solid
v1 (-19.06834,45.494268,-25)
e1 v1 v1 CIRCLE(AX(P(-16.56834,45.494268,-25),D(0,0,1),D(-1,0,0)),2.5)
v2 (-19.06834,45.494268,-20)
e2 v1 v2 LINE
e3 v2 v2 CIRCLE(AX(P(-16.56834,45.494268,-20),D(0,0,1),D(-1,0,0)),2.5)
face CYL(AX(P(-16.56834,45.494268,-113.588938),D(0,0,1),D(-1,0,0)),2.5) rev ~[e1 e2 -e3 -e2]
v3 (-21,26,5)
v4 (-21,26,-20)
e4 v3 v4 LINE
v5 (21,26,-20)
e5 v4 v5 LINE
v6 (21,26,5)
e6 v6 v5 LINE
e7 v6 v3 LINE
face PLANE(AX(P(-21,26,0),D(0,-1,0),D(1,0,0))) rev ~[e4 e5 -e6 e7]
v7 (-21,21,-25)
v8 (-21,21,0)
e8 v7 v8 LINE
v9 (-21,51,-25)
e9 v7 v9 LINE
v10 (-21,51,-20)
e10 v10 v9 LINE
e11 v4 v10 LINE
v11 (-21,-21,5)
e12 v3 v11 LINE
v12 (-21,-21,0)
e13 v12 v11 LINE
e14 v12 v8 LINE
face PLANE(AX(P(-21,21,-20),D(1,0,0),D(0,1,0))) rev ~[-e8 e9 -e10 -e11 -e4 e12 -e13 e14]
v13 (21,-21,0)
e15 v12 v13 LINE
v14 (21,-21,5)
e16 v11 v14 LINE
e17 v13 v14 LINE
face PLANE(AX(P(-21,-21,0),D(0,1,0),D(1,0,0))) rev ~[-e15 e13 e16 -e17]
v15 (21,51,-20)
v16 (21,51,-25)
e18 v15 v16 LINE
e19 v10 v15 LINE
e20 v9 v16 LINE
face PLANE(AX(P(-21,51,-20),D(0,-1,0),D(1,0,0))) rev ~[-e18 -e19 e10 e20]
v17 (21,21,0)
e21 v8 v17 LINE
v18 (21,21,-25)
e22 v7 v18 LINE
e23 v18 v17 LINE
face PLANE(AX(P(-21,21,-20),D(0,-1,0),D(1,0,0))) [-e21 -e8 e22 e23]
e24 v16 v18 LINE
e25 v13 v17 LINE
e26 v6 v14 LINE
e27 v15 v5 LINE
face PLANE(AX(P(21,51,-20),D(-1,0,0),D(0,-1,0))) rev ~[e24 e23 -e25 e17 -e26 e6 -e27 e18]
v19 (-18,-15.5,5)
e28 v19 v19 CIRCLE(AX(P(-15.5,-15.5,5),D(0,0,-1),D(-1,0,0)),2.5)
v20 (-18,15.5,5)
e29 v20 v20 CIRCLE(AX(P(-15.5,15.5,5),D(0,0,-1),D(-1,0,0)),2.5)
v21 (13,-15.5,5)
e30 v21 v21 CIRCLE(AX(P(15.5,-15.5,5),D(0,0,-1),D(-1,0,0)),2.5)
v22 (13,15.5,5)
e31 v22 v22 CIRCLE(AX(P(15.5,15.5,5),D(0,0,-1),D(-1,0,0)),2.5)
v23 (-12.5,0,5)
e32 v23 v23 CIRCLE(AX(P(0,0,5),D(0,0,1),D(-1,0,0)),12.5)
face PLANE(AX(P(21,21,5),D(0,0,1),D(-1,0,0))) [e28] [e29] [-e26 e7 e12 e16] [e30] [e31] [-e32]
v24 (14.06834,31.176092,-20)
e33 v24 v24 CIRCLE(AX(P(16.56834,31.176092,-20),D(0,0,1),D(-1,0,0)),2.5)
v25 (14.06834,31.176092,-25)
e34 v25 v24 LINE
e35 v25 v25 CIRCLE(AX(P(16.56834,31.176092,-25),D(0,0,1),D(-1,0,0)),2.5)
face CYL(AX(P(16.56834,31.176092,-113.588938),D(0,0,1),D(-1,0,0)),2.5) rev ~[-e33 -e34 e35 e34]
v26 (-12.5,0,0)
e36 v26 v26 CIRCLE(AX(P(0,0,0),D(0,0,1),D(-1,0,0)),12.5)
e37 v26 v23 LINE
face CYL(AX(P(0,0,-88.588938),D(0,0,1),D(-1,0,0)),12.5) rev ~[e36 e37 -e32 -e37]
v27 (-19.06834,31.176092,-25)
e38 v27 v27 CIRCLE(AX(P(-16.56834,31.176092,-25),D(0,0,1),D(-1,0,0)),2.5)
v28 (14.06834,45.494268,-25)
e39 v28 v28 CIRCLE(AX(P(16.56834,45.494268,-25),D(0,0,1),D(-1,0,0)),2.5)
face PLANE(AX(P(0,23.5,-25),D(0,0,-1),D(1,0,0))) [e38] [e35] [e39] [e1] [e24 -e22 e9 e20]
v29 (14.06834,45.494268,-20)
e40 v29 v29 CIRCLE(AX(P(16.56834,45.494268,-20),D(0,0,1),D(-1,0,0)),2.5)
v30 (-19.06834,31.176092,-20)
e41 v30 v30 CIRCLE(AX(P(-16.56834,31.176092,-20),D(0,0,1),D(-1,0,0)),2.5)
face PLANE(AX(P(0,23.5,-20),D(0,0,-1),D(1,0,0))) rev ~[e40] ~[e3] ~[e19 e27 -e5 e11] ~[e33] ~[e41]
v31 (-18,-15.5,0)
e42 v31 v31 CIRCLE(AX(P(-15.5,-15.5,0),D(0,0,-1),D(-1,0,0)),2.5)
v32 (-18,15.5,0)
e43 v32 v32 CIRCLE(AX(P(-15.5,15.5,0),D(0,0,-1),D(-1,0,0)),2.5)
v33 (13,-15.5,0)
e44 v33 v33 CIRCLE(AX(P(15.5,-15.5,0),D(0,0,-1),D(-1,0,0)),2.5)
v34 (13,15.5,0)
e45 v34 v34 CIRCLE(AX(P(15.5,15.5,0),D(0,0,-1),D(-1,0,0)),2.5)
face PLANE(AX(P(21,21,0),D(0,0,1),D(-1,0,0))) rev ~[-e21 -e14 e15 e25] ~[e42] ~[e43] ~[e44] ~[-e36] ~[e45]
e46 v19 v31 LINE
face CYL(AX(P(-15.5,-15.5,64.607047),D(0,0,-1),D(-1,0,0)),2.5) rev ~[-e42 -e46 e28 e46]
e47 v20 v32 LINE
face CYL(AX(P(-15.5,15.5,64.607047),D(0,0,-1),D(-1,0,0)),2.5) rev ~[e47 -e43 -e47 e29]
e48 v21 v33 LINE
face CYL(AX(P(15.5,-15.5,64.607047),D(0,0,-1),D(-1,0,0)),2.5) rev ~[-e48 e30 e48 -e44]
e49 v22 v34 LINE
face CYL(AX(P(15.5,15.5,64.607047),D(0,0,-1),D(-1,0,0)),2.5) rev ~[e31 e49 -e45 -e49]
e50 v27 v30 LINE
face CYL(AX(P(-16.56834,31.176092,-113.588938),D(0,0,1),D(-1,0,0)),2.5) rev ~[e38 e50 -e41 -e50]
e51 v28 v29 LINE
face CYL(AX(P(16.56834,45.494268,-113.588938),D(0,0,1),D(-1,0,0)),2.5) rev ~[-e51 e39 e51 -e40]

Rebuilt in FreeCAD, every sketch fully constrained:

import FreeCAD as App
import Part
import Sketcher
from FreeCAD import Vector
Q = App.Units.Quantity

doc = App.newDocument("Part")
params = doc.addObject("Spreadsheet::Sheet", "Params")
for row, (alias, value) in enumerate([
    ("sketch1_width", "42 mm"),
    ("pad1_length", "5 mm"),
    ("sketch2_diameter", "5 mm"),
    ("hole_diameter", "5 mm"),
    ("sketch3_width", "42 mm"),
    ("sketch3_height", "5 mm"),
    ("pad2_length", "5 mm"),
    ("sketch4_width", "42 mm"),
    ("sketch4_height", "5 mm"),
    ("pad3_length", "20 mm"),
    ("sketch5_width", "42 mm"),
    ("sketch5_height", "30 mm"),
    ("pad4_length", "5 mm"),
    ("sketch6_diameter", "5 mm"),
    ("hole2_diameter", "5 mm"),
    ("sketch7_diameter", "25 mm"),
    ("hole3_diameter", "25 mm"),
], start=1):
    params.set(f"A{row}", alias)
    params.set(f"B{row}", "=" + value)
    params.setAlias(f"B{row}", alias)

body = doc.addObject("PartDesign::Body", "Body")

# Sketch on XY plane
sketch1 = body.newObject("Sketcher::SketchObject", "Sketch")
sketch1.AttachmentSupport = (doc.getObject("XY_Plane"), [""])
sketch1.MapMode = "FlatFace"
sketch1.addGeometry(Part.LineSegment(Vector(-21, 21, 0), Vector(-21, -21, 0)), False)
sketch1.addGeometry(Part.LineSegment(Vector(-21, -21, 0), Vector(21, -21, 0)), False)
sketch1.addGeometry(Part.LineSegment(Vector(21, -21, 0), Vector(21, 21, 0)), False)
sketch1.addGeometry(Part.LineSegment(Vector(21, 21, 0), Vector(-21, 21, 0)), False)
sketch1.addConstraint(Sketcher.Constraint("Coincident", 0, 2, 1, 1))
sketch1.addConstraint(Sketcher.Constraint("Coincident", 1, 2, 2, 1))
sketch1.addConstraint(Sketcher.Constraint("Coincident", 2, 2, 3, 1))
sketch1.addConstraint(Sketcher.Constraint("Coincident", 3, 2, 0, 1))
sketch1.addConstraint(Sketcher.Constraint("Vertical", 0))
sketch1.addConstraint(Sketcher.Constraint("Horizontal", 1))
sketch1.addConstraint(Sketcher.Constraint("Vertical", 2))
sketch1.addConstraint(Sketcher.Constraint("Horizontal", 3))
sketch1.addConstraint(Sketcher.Constraint("Symmetric", 0, 2, 2, 2, -1, 1))
sketch1.addConstraint(Sketcher.Constraint("Equal", 3, 0))
sketch1.addConstraint(Sketcher.Constraint("DistanceX", 1, 1, 1, 2, Q("42 mm")))
sketch1.setExpression("Constraints[10]", "Params.sketch1_width")
pad1 = body.newObject("PartDesign::Pad", "Pad")
pad1.Profile = sketch1
pad1.setExpression("Length", "Params.pad1_length")

# Sketch on XY plane
sketch2 = body.newObject("Sketcher::SketchObject", "Sketch001")
sketch2.AttachmentSupport = (doc.getObject("XY_Plane"), [""])
sketch2.MapMode = "FlatFace"
sketch2.AttachmentOffset = App.Placement(Vector(0, 0, 5), App.Rotation())
sketch2.addGeometry(Part.Circle(Vector(-15.5, 15.5, 0), Vector(0, 0, 1), 2.5), False)
sketch2.addGeometry(Part.Circle(Vector(15.5, 15.5, 0), Vector(0, 0, 1), 2.5), False)
sketch2.addGeometry(Part.Circle(Vector(15.5, -15.5, 0), Vector(0, 0, 1), 2.5), False)
sketch2.addGeometry(Part.Circle(Vector(-15.5, -15.5, 0), Vector(0, 0, 1), 2.5), False)
sketch2.addConstraint(Sketcher.Constraint("Equal", 0, 1))
sketch2.addConstraint(Sketcher.Constraint("Equal", 1, 2))
sketch2.addConstraint(Sketcher.Constraint("Equal", 2, 3))
sketch2.addConstraint(Sketcher.Constraint("Symmetric", 0, 3, 2, 3, -1, 1))
sketch2.addConstraint(Sketcher.Constraint("Symmetric", 1, 3, 3, 3, -1, 1))
sketch2.addConstraint(Sketcher.Constraint("Symmetric", 0, 3, 1, 3, -2))
sketch2.addConstraint(Sketcher.Constraint("Diameter", 0, Q("5 mm")))
sketch2.addConstraint(Sketcher.Constraint("DistanceX", 0, 3, 1, 3, Q("31 mm")))
sketch2.addConstraint(Sketcher.Constraint("DistanceY", 2, 3, 1, 3, Q("31 mm")))
sketch2.setExpression("Constraints[6]", "Params.sketch2_diameter")
doc.recompute()
hole = body.newObject("PartDesign::Hole", "Hole")
hole.Profile = sketch2
hole.ThreadType = "None"
hole.setExpression("Diameter", "Params.hole_diameter")
hole.DepthType = "ThroughAll"

# Sketch on XZ plane
sketch3 = body.newObject("Sketcher::SketchObject", "Sketch002")
sketch3.AttachmentSupport = (doc.getObject("XZ_Plane"), [""])
sketch3.MapMode = "FlatFace"
sketch3.AttachmentOffset = App.Placement(Vector(0, 0, -21), App.Rotation())
sketch3.addGeometry(Part.LineSegment(Vector(21, 5, 0), Vector(21, 0, 0)), False)
sketch3.addGeometry(Part.LineSegment(Vector(21, 0, 0), Vector(-21, 0, 0)), False)
sketch3.addGeometry(Part.LineSegment(Vector(-21, 0, 0), Vector(-21, 5, 0)), False)
sketch3.addGeometry(Part.LineSegment(Vector(-21, 5, 0), Vector(21, 5, 0)), False)
sketch3.addConstraint(Sketcher.Constraint("Coincident", 0, 2, 1, 1))
sketch3.addConstraint(Sketcher.Constraint("Coincident", 1, 2, 2, 1))
sketch3.addConstraint(Sketcher.Constraint("Coincident", 2, 2, 3, 1))
sketch3.addConstraint(Sketcher.Constraint("Coincident", 3, 2, 0, 1))
sketch3.addConstraint(Sketcher.Constraint("Vertical", 0))
sketch3.addConstraint(Sketcher.Constraint("Horizontal", 1))
sketch3.addConstraint(Sketcher.Constraint("Vertical", 2))
sketch3.addConstraint(Sketcher.Constraint("Horizontal", 3))
sketch3.addConstraint(Sketcher.Constraint("Symmetric", 0, 2, 1, 2, -1, 1))
sketch3.addConstraint(Sketcher.Constraint("DistanceX", 1, 2, 1, 1, Q("42 mm")))
sketch3.addConstraint(Sketcher.Constraint("DistanceY", 0, 2, 0, 1, Q("5 mm")))
sketch3.setExpression("Constraints[9]", "Params.sketch3_width")
sketch3.setExpression("Constraints[10]", "Params.sketch3_height")
pad2 = body.newObject("PartDesign::Pad", "Pad001")
pad2.Profile = sketch3
pad2.setExpression("Length", "Params.pad2_length")
pad2.Reversed = True

# Sketch on XY plane
sketch4 = body.newObject("Sketcher::SketchObject", "Sketch003")
sketch4.AttachmentSupport = (doc.getObject("XY_Plane"), [""])
sketch4.MapMode = "FlatFace"
sketch4.addGeometry(Part.LineSegment(Vector(-21, 21, 0), Vector(-21, 26, 0)), False)
sketch4.addGeometry(Part.LineSegment(Vector(-21, 26, 0), Vector(21, 26, 0)), False)
sketch4.addGeometry(Part.LineSegment(Vector(21, 26, 0), Vector(21, 21, 0)), False)
sketch4.addGeometry(Part.LineSegment(Vector(21, 21, 0), Vector(-21, 21, 0)), False)
sketch4.addConstraint(Sketcher.Constraint("Coincident", 0, 2, 1, 1))
sketch4.addConstraint(Sketcher.Constraint("Coincident", 1, 2, 2, 1))
sketch4.addConstraint(Sketcher.Constraint("Coincident", 2, 2, 3, 1))
sketch4.addConstraint(Sketcher.Constraint("Coincident", 3, 2, 0, 1))
sketch4.addConstraint(Sketcher.Constraint("Vertical", 0))
sketch4.addConstraint(Sketcher.Constraint("Horizontal", 1))
sketch4.addConstraint(Sketcher.Constraint("Vertical", 2))
sketch4.addConstraint(Sketcher.Constraint("Horizontal", 3))
sketch4.addConstraint(Sketcher.Constraint("DistanceX", 1, 1, 1, 2, Q("42 mm")))
sketch4.addConstraint(Sketcher.Constraint("DistanceY", 0, 1, 0, 2, Q("5 mm")))
sketch4.addConstraint(Sketcher.Constraint("DistanceX", 0, 2, -1, 1, Q("21 mm")))
sketch4.addConstraint(Sketcher.Constraint("DistanceY", -1, 1, 0, 2, Q("26 mm")))
sketch4.setExpression("Constraints[8]", "Params.sketch4_width")
sketch4.setExpression("Constraints[9]", "Params.sketch4_height")
pad3 = body.newObject("PartDesign::Pad", "Pad002")
pad3.Profile = sketch4
pad3.setExpression("Length", "Params.pad3_length")
pad3.Reversed = True

# Sketch on XY plane
sketch5 = body.newObject("Sketcher::SketchObject", "Sketch004")
sketch5.AttachmentSupport = (doc.getObject("XY_Plane"), [""])
sketch5.MapMode = "FlatFace"
sketch5.AttachmentOffset = App.Placement(Vector(0, 0, -20), App.Rotation())
sketch5.addGeometry(Part.LineSegment(Vector(-21, 21, 0), Vector(-21, 51, 0)), False)
sketch5.addGeometry(Part.LineSegment(Vector(-21, 51, 0), Vector(21, 51, 0)), False)
sketch5.addGeometry(Part.LineSegment(Vector(21, 51, 0), Vector(21, 21, 0)), False)
sketch5.addGeometry(Part.LineSegment(Vector(21, 21, 0), Vector(-21, 21, 0)), False)
sketch5.addConstraint(Sketcher.Constraint("Coincident", 0, 2, 1, 1))
sketch5.addConstraint(Sketcher.Constraint("Coincident", 1, 2, 2, 1))
sketch5.addConstraint(Sketcher.Constraint("Coincident", 2, 2, 3, 1))
sketch5.addConstraint(Sketcher.Constraint("Coincident", 3, 2, 0, 1))
sketch5.addConstraint(Sketcher.Constraint("Vertical", 0))
sketch5.addConstraint(Sketcher.Constraint("Horizontal", 1))
sketch5.addConstraint(Sketcher.Constraint("Vertical", 2))
sketch5.addConstraint(Sketcher.Constraint("Horizontal", 3))
sketch5.addConstraint(Sketcher.Constraint("DistanceX", 1, 1, 1, 2, Q("42 mm")))
sketch5.addConstraint(Sketcher.Constraint("DistanceY", 0, 1, 0, 2, Q("30 mm")))
sketch5.addConstraint(Sketcher.Constraint("DistanceX", 0, 2, -1, 1, Q("21 mm")))
sketch5.addConstraint(Sketcher.Constraint("DistanceY", -1, 1, 0, 2, Q("51 mm")))
sketch5.setExpression("Constraints[8]", "Params.sketch5_width")
sketch5.setExpression("Constraints[9]", "Params.sketch5_height")
pad4 = body.newObject("PartDesign::Pad", "Pad003")
pad4.Profile = sketch5
pad4.setExpression("Length", "Params.pad4_length")
pad4.Reversed = True

# Sketch on XY plane
sketch6 = body.newObject("Sketcher::SketchObject", "Sketch005")
sketch6.AttachmentSupport = (doc.getObject("XY_Plane"), [""])
sketch6.MapMode = "FlatFace"
sketch6.AttachmentOffset = App.Placement(Vector(0, 0, -25), App.Rotation())
sketch6.addGeometry(Part.Circle(Vector(-16.6, 31.2, 0), Vector(0, 0, 1), 2.5), False)
sketch6.addGeometry(Part.Circle(Vector(16.6, 31.2, 0), Vector(0, 0, 1), 2.5), False)
sketch6.addGeometry(Part.Circle(Vector(16.6, 45.5, 0), Vector(0, 0, 1), 2.5), False)
sketch6.addGeometry(Part.Circle(Vector(-16.6, 45.5, 0), Vector(0, 0, 1), 2.5), False)
sketch6.addConstraint(Sketcher.Constraint("Equal", 0, 1))
sketch6.addConstraint(Sketcher.Constraint("Equal", 1, 2))
sketch6.addConstraint(Sketcher.Constraint("Equal", 2, 3))
sketch6.addConstraint(Sketcher.Constraint("Symmetric", 0, 3, 1, 3, -2))
sketch6.addConstraint(Sketcher.Constraint("Symmetric", 2, 3, 3, 3, -2))
sketch6.addConstraint(Sketcher.Constraint("Vertical", 1, 3, 2, 3))
sketch6.addConstraint(Sketcher.Constraint("Diameter", 0, Q("5 mm")))
sketch6.addConstraint(Sketcher.Constraint("DistanceX", 0, 3, -1, 1, Q("16.56834 mm")))
sketch6.addConstraint(Sketcher.Constraint("DistanceY", -1, 1, 0, 3, Q("31.176092 mm")))
sketch6.addConstraint(Sketcher.Constraint("DistanceY", -1, 1, 2, 3, Q("45.494268 mm")))
sketch6.setExpression("Constraints[6]", "Params.sketch6_diameter")
doc.recompute()
hole2 = body.newObject("PartDesign::Hole", "Hole001")
hole2.Profile = sketch6
hole2.ThreadType = "None"
hole2.setExpression("Diameter", "Params.hole2_diameter")
hole2.DepthType = "ThroughAll"
hole2.Reversed = True

# Sketch on XY plane
sketch7 = body.newObject("Sketcher::SketchObject", "Sketch006")
sketch7.AttachmentSupport = (doc.getObject("XY_Plane"), [""])
sketch7.MapMode = "FlatFace"
sketch7.addGeometry(Part.Circle(Vector(0, 0, 0), Vector(0, 0, 1), 12), False)
sketch7.addConstraint(Sketcher.Constraint("Coincident", 0, 3, -1, 1))
sketch7.addConstraint(Sketcher.Constraint("Diameter", 0, Q("25 mm")))
sketch7.setExpression("Constraints[1]", "Params.sketch7_diameter")
doc.recompute()
hole3 = body.newObject("PartDesign::Hole", "Hole002")
hole3.Profile = sketch7
hole3.ThreadType = "None"
hole3.setExpression("Diameter", "Params.hole3_diameter")
hole3.DepthType = "ThroughAll"
hole3.Reversed = True

doc.recompute()
